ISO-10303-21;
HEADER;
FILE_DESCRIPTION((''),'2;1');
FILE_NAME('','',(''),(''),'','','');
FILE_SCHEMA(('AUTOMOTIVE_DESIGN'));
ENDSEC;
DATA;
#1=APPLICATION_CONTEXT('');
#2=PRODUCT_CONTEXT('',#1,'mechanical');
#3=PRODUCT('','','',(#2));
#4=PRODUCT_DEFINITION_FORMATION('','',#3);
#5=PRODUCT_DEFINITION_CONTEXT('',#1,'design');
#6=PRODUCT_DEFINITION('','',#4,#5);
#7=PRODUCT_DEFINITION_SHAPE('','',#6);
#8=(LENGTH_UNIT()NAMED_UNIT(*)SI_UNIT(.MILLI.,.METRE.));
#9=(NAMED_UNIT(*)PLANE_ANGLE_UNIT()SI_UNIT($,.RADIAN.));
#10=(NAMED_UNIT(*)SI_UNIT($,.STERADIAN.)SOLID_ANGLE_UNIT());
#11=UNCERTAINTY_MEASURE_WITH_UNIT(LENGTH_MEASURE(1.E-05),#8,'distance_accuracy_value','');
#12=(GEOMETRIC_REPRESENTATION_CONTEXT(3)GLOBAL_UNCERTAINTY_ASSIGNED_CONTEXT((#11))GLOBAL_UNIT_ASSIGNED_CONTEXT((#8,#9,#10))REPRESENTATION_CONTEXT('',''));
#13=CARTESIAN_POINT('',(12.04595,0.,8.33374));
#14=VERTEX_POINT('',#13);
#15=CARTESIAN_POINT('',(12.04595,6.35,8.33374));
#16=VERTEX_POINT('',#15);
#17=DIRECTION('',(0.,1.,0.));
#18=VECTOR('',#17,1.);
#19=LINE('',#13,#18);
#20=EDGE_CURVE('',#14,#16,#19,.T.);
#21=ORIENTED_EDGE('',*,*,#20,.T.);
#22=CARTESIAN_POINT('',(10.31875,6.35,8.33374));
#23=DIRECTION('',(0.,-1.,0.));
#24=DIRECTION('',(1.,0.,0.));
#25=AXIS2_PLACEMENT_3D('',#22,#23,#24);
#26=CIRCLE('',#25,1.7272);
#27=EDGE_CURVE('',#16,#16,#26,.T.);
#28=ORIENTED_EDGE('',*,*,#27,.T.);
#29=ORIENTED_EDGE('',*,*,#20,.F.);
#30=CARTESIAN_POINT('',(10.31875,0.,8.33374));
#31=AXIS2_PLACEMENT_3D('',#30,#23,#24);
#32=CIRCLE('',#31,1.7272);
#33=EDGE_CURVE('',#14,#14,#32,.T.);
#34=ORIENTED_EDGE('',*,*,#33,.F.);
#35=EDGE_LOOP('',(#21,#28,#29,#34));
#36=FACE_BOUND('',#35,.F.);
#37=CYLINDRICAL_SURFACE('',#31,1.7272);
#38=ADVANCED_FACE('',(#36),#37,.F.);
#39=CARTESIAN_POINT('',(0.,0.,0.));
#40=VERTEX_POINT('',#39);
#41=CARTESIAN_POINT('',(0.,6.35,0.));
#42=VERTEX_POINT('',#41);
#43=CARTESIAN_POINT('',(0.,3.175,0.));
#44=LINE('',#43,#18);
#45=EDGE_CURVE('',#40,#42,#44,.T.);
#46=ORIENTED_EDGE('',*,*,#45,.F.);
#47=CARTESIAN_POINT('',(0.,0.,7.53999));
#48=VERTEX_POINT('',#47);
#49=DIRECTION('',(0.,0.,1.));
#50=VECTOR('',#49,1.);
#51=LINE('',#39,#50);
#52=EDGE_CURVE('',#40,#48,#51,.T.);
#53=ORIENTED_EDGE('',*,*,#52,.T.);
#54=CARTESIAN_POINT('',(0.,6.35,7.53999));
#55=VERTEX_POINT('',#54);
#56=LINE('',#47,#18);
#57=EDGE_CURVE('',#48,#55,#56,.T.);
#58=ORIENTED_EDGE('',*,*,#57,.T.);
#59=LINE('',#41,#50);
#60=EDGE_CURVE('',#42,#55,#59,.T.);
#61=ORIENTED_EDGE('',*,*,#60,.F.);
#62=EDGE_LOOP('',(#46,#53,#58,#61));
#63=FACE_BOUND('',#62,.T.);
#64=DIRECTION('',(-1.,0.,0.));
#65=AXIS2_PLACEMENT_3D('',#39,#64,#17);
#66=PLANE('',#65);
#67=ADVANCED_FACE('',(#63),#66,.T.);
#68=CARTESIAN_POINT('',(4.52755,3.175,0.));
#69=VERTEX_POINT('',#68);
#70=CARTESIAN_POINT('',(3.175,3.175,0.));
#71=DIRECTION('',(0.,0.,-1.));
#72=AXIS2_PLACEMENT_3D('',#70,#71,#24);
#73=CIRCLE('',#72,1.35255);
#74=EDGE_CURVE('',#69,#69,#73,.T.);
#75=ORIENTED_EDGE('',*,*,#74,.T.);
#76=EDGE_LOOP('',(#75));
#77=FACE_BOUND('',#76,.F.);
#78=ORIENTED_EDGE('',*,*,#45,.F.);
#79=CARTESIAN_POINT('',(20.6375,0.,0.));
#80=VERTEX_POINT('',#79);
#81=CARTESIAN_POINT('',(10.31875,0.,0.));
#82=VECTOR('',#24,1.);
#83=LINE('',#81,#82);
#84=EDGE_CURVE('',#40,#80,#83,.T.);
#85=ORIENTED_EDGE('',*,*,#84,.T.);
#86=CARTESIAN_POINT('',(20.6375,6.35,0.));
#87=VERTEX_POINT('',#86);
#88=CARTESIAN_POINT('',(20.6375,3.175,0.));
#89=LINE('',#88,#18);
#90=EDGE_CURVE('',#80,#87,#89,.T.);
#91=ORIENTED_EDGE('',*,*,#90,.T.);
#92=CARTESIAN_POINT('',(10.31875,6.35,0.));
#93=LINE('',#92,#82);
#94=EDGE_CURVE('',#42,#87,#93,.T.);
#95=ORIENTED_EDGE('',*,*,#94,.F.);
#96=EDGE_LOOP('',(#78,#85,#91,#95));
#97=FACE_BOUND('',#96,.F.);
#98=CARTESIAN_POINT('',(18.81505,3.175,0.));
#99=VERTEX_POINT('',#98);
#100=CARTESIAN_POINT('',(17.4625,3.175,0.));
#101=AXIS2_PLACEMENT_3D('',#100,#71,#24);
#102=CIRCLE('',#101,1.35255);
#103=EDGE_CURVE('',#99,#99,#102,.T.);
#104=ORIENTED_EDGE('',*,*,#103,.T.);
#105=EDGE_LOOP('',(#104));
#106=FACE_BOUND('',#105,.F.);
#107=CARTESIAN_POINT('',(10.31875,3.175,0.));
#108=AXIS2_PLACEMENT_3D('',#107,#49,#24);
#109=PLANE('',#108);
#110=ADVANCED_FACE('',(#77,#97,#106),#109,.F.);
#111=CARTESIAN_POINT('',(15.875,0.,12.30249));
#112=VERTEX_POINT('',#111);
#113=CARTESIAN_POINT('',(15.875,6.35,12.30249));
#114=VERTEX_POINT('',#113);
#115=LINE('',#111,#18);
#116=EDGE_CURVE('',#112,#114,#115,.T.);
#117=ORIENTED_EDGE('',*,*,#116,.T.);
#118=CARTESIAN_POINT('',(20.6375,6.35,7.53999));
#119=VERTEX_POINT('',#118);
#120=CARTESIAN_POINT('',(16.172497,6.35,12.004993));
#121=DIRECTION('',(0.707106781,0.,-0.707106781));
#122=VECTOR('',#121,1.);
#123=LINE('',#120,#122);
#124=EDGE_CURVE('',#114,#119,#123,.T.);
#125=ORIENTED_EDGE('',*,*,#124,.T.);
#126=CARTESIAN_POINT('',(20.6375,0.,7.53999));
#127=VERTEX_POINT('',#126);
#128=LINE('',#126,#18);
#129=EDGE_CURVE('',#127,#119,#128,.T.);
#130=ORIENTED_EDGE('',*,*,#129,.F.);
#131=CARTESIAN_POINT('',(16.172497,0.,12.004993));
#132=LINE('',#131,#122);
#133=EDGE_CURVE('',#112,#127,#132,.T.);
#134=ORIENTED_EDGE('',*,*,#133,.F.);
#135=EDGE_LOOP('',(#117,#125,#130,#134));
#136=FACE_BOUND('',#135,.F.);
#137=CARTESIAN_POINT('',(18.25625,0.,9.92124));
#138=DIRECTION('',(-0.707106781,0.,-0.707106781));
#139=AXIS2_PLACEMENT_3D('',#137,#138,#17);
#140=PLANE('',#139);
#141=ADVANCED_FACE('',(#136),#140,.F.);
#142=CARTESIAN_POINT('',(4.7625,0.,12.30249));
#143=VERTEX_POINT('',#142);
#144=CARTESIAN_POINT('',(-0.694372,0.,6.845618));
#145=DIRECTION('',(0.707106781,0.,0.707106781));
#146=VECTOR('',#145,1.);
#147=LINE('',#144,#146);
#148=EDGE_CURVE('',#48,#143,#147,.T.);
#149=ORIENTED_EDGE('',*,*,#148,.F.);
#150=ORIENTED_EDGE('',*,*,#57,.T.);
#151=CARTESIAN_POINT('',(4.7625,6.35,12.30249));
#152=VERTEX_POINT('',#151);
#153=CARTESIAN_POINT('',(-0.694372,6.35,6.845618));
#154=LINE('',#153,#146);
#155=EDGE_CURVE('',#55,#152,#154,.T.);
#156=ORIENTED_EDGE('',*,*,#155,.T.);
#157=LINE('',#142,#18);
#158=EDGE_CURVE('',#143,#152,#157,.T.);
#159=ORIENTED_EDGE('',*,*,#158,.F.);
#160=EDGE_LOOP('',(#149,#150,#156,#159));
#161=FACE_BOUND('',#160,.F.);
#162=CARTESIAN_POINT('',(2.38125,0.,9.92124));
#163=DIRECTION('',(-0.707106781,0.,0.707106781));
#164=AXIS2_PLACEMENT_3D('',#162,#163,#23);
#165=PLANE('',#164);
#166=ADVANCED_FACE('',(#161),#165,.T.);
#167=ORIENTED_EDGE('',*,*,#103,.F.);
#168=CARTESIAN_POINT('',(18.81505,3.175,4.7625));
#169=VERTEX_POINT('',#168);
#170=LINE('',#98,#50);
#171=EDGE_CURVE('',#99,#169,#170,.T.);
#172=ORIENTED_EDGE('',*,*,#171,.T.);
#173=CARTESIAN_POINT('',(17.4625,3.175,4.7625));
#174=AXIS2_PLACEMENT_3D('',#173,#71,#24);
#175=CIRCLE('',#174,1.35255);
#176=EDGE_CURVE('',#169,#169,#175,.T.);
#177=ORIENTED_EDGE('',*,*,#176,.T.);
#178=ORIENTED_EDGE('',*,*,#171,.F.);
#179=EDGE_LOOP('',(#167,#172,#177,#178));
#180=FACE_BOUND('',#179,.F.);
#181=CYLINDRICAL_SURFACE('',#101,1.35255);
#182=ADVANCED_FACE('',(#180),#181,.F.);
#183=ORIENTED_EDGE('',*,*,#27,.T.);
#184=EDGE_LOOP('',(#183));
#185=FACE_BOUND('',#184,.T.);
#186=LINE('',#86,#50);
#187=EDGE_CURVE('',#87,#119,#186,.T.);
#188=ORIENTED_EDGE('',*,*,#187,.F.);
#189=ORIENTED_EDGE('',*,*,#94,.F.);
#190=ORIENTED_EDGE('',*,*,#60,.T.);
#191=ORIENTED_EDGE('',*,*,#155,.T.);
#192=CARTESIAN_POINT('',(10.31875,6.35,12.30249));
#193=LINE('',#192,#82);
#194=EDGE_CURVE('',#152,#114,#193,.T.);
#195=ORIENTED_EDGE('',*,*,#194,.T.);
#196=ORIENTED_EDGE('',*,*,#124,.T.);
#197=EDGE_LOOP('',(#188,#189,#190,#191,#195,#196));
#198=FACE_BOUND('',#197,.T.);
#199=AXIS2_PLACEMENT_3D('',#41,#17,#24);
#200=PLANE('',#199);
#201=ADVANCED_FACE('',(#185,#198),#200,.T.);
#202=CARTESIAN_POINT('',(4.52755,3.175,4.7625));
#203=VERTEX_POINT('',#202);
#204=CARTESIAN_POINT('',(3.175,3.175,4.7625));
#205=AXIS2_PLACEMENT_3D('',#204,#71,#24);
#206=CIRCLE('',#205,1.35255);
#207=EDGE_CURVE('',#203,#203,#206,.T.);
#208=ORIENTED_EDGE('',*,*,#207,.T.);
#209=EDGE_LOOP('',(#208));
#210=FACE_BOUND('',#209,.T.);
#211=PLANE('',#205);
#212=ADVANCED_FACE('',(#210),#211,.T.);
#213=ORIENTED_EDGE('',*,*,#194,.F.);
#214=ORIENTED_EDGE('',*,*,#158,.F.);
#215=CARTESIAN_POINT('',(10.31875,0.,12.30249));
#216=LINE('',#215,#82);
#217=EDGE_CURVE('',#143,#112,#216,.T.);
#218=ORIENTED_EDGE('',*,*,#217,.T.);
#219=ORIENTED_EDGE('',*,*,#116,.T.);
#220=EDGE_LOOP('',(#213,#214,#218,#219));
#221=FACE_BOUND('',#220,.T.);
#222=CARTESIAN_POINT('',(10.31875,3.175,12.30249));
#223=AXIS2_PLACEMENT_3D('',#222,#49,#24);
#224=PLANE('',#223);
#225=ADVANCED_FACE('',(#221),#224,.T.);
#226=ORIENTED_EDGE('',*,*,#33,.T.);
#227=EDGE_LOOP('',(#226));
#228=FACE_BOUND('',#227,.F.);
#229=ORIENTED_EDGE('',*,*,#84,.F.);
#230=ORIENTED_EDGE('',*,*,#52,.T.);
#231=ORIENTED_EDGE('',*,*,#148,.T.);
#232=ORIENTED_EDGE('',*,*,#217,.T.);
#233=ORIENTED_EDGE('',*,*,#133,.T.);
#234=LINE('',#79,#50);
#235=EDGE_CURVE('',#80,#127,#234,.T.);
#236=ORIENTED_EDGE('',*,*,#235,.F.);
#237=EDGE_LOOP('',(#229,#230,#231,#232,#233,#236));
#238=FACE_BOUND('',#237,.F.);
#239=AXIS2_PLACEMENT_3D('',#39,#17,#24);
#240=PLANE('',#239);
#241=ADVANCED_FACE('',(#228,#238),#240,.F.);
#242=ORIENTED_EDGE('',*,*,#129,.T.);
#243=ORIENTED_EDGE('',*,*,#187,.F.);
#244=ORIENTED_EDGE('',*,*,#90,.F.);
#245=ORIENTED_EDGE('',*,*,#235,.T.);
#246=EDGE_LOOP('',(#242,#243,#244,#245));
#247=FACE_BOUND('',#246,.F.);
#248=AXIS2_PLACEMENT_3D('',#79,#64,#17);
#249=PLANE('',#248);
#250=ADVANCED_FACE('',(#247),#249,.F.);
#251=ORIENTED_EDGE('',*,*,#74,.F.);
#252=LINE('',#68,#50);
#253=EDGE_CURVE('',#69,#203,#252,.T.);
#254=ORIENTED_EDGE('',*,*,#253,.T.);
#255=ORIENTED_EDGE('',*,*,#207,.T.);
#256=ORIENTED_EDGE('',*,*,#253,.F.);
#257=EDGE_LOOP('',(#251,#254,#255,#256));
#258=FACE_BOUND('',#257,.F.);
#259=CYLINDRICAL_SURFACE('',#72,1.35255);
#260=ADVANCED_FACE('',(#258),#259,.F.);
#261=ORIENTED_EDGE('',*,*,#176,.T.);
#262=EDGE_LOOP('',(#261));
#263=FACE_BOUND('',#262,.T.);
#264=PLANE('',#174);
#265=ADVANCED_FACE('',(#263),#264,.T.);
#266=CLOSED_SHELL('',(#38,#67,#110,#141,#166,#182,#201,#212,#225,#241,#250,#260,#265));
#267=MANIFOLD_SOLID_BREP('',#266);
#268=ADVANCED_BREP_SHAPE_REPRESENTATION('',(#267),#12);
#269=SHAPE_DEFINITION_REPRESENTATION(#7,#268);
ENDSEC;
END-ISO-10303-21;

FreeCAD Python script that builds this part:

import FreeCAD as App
import Part
import Sketcher
from FreeCAD import Vector
Q = App.Units.Quantity


def edges_at(feature, points):
    """Names of the edges that pass closest to the given points."""
    edges = feature.Shape.Edges
    near = lambda p: min(range(len(edges)), key=lambda i: edges[i].distToShape(Part.Vertex(*p))[0])
    return sorted({f"Edge{near(p) + 1}" for p in points})


def add_polygon(sketch, points):
    """Adds a closed chain of lines whose ends are joined by coincident constraints."""
    first, n = sketch.GeometryCount, len(points)
    for a, b in zip(points, points[1:] + points[:1]):
        sketch.addGeometry(Part.LineSegment(App.Vector(*a, 0), App.Vector(*b, 0)), False)
    for i in range(n):
        sketch.addConstraint(Sketcher.Constraint("Coincident", first + i, 2, first + (i + 1) % n, 1))

doc = App.newDocument("Part")
body = doc.addObject("PartDesign::Body", "Body")

sketch1 = doc.addObject("Sketcher::SketchObject", "Sketch")
body.addObject(sketch1)
sketch1.AttachmentSupport = (doc.XY_Plane, [""])
sketch1.MapMode = "FlatFace"
add_polygon(sketch1, [(0, 6), (0, 0), (21, 0), (21, 6)])
sketch1.addConstraint([
    Sketcher.Constraint("Vertical", 0),
    Sketcher.Constraint("Horizontal", 1),
    Sketcher.Constraint("Vertical", 2),
    Sketcher.Constraint("Horizontal", 3),
    Sketcher.Constraint("Coincident", 0, 2, -1, 1),
    Sketcher.Constraint("DistanceY", 0, 2, 0, 1, Q("0.25 in")),
    Sketcher.Constraint("DistanceX", 1, 1, 1, 2, Q("0.8125 in")),
])
pad1 = doc.addObject("PartDesign::Pad", "Pad")
body.addObject(pad1)
pad1.Profile = sketch1
pad1.Length = 12.30249

sketch2 = doc.addObject("Sketcher::SketchObject", "Sketch001")
body.addObject(sketch2)
sketch2.AttachmentSupport = (doc.XZ_Plane, [""])
sketch2.MapMode = "FlatFace"
sketch2.addGeometry(Part.Circle(Vector(10.3, 8.3, 0), Vector(0, 0, 1), 1.7), False)
sketch2.addConstraint([
    Sketcher.Constraint("Diameter", 0, Q("0.136 in")),
    Sketcher.Constraint("DistanceX", -1, 1, 0, 3, Q("0.40625 in")),
    Sketcher.Constraint("DistanceY", -1, 1, 0, 3, Q("0.3281 in")),
])
pocket1 = doc.addObject("PartDesign::Pocket", "Pocket")
body.addObject(pocket1)
pocket1.Profile = sketch2
pocket1.Type = "ThroughAll"

sketch3 = doc.addObject("Sketcher::SketchObject", "Sketch002")
body.addObject(sketch3)
sketch3.AttachmentSupport = (doc.XY_Plane, [""])
sketch3.MapMode = "FlatFace"
sketch3.addGeometry([
    Part.Circle(Vector(3.2, 3.2, 0), Vector(0, 0, 1), 1.4),
    Part.Circle(Vector(17.5, 3.2, 0), Vector(0, 0, 1), 1.4),
], False)
sketch3.addConstraint([
    Sketcher.Constraint("Equal", 0, 1),
    Sketcher.Constraint("Horizontal", 0, 3, 1, 3),
    Sketcher.Constraint("Diameter", 0, Q("0.1065 in")),
    Sketcher.Constraint("DistanceX", -1, 1, 0, 3, Q("0.125 in")),
    Sketcher.Constraint("DistanceY", -1, 1, 0, 3, Q("0.125 in")),
    Sketcher.Constraint("DistanceX", -1, 1, 1, 3, Q("0.6875 in")),
])
pocket2 = doc.addObject("PartDesign::Pocket", "Pocket001")
body.addObject(pocket2)
pocket2.Profile = sketch3
pocket2.Length = Q("0.1875 in")
pocket2.Reversed = True
doc.recompute()

chamfer = doc.addObject("PartDesign::Chamfer", "Chamfer")
body.addObject(chamfer)
chamfer.Base = (pocket2, edges_at(pocket2, [(0, 3.175, 12.302), (20.637, 3.175, 12.302)]))
chamfer.Size = Q("0.1875 in")

doc.recompute()
